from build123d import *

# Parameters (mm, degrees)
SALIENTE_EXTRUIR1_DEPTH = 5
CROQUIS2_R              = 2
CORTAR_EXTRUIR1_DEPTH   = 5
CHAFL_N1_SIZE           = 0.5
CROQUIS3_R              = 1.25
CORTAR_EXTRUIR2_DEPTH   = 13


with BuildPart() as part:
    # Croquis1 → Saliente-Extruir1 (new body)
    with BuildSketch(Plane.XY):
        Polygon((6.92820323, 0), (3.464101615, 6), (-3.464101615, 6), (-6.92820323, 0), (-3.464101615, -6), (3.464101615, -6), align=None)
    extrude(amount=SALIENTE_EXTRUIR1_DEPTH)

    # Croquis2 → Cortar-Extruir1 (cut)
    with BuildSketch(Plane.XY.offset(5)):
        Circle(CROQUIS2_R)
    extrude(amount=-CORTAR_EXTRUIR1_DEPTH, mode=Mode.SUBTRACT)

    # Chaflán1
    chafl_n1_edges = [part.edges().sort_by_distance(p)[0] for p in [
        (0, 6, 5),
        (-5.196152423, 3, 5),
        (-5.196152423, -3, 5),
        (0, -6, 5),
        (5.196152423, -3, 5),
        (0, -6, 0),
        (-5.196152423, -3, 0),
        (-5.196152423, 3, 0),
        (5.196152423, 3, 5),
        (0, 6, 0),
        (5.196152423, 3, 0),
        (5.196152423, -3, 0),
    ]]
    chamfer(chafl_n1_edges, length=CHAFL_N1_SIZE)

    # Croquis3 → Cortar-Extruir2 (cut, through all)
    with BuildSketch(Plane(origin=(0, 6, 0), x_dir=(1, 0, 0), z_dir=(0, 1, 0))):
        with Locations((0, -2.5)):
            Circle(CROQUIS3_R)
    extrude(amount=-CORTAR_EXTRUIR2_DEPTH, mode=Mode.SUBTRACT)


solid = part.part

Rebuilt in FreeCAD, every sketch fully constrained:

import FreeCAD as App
import Part
import Sketcher
Q = App.Units.Quantity


def edges_at(feature, points):
    """Names of the edges that pass closest to the given points."""
    edges = feature.Shape.Edges
    near = lambda p: min(range(len(edges)), key=lambda i: edges[i].distToShape(Part.Vertex(*p))[0])
    return sorted({f"Edge{near(p) + 1}" for p in points})

doc = App.newDocument("Part")
body = doc.addObject("PartDesign::Body", "Body")

# Sketch on XY plane
sketch1 = doc.addObject("Sketcher::SketchObject", "Sketch")
body.addObject(sketch1)
sketch1.AttachmentSupport = (doc.XY_Plane, [""])
sketch1.MapMode = "FlatFace"
sketch1.addGeometry(Part.LineSegment(App.Vector(7, 0, 0), App.Vector(3, 6, 0)), False)
sketch1.addGeometry(Part.LineSegment(App.Vector(3, 6, 0), App.Vector(-3, 6, 0)), False)
sketch1.addGeometry(Part.LineSegment(App.Vector(-3, 6, 0), App.Vector(-7, 0, 0)), False)
sketch1.addGeometry(Part.LineSegment(App.Vector(-7, 0, 0), App.Vector(-3, -6, 0)), False)
sketch1.addGeometry(Part.LineSegment(App.Vector(-3, -6, 0), App.Vector(3, -6, 0)), False)
sketch1.addGeometry(Part.LineSegment(App.Vector(3, -6, 0), App.Vector(7, 0, 0)), False)
sketch1.addConstraint(Sketcher.Constraint("Coincident", 0, 2, 1, 1))
sketch1.addConstraint(Sketcher.Constraint("Coincident", 1, 2, 2, 1))
sketch1.addConstraint(Sketcher.Constraint("Coincident", 2, 2, 3, 1))
sketch1.addConstraint(Sketcher.Constraint("Coincident", 3, 2, 4, 1))
sketch1.addConstraint(Sketcher.Constraint("Coincident", 4, 2, 5, 1))
sketch1.addConstraint(Sketcher.Constraint("Coincident", 5, 2, 0, 1))
sketch1.addConstraint(Sketcher.Constraint("Horizontal", 1))
sketch1.addConstraint(Sketcher.Constraint("Horizontal", 4))
sketch1.addConstraint(Sketcher.Constraint("Symmetric", 0, 2, 3, 2, -1, 1))
sketch1.addConstraint(Sketcher.Constraint("Symmetric", 2, 2, 5, 2, -1, 1))
sketch1.addConstraint(Sketcher.Constraint("PointOnObject", 2, 2, -1))
sketch1.addConstraint(Sketcher.Constraint("Parallel", 2, 5))
sketch1.addConstraint(Sketcher.Constraint("Vertical", 1, 2, 3, 2))
sketch1.addConstraint(Sketcher.Constraint("Angle", 0, Q("120 deg")))
sketch1.addConstraint(Sketcher.Constraint("DistanceY", -1, 1, 0, 2, 6.0))
sketch1.addConstraint(Sketcher.Constraint("DistanceX", -1, 1, 0, 2, 3.464102))
pad1 = doc.addObject("PartDesign::Pad", "Pad")
body.addObject(pad1)
pad1.Profile = sketch1
pad1.Length = 5

# Sketch on XY plane
sketch2 = doc.addObject("Sketcher::SketchObject", "Sketch001")
body.addObject(sketch2)
sketch2.AttachmentSupport = (doc.XY_Plane, [""])
sketch2.MapMode = "FlatFace"
sketch2.AttachmentOffset = App.Placement(App.Vector(0, 0, 5), App.Rotation())
sketch2.addGeometry(Part.Circle(App.Vector(0, 0, 0), App.Vector(0, 0, 1), 2), False)
sketch2.addConstraint(Sketcher.Constraint("Coincident", 0, 3, -1, 1))
sketch2.addConstraint(Sketcher.Constraint("Diameter", 0, 4.0))
pocket1 = doc.addObject("PartDesign::Pocket", "Pocket")
body.addObject(pocket1)
pocket1.Profile = sketch2
pocket1.Length = 5
doc.recompute()

chamfer = doc.addObject("PartDesign::Chamfer", "Chamfer")
body.addObject(chamfer)
chamfer.Base = (pocket1, edges_at(pocket1, [
    (0, 6, 5),
    (-5.196, 3, 5),
    (-5.196, -3, 5),
    (0, -6, 5),
    (5.196, -3, 5),
    (0, -6, 0),
    (-5.196, -3, 0),
    (-5.196, 3, 0),
    (5.196, 3, 5),
    (0, 6, 0),
    (5.196, 3, 0),
    (5.196, -3, 0),
]))
chamfer.Size = 0.5

# Sketch on XZ plane
sketch3 = doc.addObject("Sketcher::SketchObject", "Sketch002")
body.addObject(sketch3)
sketch3.AttachmentSupport = (doc.XZ_Plane, [""])
sketch3.MapMode = "FlatFace"
sketch3.AttachmentOffset = App.Placement(App.Vector(0, 0, -6), App.Rotation())
sketch3.addGeometry(Part.Circle(App.Vector(0, 2.5, 0), App.Vector(0, 0, 1), 1.2), False)
sketch3.addConstraint(Sketcher.Constraint("PointOnObject", 0, 3, -2))
sketch3.addConstraint(Sketcher.Constraint("Diameter", 0, 2.5))
sketch3.addConstraint(Sketcher.Constraint("DistanceY", -1, 1, 0, 3, 2.5))
pocket2 = doc.addObject("PartDesign::Pocket", "Pocket001")
body.addObject(pocket2)
pocket2.Profile = sketch3
pocket2.Type = "ThroughAll"
pocket2.Reversed = True

doc.recompute()
